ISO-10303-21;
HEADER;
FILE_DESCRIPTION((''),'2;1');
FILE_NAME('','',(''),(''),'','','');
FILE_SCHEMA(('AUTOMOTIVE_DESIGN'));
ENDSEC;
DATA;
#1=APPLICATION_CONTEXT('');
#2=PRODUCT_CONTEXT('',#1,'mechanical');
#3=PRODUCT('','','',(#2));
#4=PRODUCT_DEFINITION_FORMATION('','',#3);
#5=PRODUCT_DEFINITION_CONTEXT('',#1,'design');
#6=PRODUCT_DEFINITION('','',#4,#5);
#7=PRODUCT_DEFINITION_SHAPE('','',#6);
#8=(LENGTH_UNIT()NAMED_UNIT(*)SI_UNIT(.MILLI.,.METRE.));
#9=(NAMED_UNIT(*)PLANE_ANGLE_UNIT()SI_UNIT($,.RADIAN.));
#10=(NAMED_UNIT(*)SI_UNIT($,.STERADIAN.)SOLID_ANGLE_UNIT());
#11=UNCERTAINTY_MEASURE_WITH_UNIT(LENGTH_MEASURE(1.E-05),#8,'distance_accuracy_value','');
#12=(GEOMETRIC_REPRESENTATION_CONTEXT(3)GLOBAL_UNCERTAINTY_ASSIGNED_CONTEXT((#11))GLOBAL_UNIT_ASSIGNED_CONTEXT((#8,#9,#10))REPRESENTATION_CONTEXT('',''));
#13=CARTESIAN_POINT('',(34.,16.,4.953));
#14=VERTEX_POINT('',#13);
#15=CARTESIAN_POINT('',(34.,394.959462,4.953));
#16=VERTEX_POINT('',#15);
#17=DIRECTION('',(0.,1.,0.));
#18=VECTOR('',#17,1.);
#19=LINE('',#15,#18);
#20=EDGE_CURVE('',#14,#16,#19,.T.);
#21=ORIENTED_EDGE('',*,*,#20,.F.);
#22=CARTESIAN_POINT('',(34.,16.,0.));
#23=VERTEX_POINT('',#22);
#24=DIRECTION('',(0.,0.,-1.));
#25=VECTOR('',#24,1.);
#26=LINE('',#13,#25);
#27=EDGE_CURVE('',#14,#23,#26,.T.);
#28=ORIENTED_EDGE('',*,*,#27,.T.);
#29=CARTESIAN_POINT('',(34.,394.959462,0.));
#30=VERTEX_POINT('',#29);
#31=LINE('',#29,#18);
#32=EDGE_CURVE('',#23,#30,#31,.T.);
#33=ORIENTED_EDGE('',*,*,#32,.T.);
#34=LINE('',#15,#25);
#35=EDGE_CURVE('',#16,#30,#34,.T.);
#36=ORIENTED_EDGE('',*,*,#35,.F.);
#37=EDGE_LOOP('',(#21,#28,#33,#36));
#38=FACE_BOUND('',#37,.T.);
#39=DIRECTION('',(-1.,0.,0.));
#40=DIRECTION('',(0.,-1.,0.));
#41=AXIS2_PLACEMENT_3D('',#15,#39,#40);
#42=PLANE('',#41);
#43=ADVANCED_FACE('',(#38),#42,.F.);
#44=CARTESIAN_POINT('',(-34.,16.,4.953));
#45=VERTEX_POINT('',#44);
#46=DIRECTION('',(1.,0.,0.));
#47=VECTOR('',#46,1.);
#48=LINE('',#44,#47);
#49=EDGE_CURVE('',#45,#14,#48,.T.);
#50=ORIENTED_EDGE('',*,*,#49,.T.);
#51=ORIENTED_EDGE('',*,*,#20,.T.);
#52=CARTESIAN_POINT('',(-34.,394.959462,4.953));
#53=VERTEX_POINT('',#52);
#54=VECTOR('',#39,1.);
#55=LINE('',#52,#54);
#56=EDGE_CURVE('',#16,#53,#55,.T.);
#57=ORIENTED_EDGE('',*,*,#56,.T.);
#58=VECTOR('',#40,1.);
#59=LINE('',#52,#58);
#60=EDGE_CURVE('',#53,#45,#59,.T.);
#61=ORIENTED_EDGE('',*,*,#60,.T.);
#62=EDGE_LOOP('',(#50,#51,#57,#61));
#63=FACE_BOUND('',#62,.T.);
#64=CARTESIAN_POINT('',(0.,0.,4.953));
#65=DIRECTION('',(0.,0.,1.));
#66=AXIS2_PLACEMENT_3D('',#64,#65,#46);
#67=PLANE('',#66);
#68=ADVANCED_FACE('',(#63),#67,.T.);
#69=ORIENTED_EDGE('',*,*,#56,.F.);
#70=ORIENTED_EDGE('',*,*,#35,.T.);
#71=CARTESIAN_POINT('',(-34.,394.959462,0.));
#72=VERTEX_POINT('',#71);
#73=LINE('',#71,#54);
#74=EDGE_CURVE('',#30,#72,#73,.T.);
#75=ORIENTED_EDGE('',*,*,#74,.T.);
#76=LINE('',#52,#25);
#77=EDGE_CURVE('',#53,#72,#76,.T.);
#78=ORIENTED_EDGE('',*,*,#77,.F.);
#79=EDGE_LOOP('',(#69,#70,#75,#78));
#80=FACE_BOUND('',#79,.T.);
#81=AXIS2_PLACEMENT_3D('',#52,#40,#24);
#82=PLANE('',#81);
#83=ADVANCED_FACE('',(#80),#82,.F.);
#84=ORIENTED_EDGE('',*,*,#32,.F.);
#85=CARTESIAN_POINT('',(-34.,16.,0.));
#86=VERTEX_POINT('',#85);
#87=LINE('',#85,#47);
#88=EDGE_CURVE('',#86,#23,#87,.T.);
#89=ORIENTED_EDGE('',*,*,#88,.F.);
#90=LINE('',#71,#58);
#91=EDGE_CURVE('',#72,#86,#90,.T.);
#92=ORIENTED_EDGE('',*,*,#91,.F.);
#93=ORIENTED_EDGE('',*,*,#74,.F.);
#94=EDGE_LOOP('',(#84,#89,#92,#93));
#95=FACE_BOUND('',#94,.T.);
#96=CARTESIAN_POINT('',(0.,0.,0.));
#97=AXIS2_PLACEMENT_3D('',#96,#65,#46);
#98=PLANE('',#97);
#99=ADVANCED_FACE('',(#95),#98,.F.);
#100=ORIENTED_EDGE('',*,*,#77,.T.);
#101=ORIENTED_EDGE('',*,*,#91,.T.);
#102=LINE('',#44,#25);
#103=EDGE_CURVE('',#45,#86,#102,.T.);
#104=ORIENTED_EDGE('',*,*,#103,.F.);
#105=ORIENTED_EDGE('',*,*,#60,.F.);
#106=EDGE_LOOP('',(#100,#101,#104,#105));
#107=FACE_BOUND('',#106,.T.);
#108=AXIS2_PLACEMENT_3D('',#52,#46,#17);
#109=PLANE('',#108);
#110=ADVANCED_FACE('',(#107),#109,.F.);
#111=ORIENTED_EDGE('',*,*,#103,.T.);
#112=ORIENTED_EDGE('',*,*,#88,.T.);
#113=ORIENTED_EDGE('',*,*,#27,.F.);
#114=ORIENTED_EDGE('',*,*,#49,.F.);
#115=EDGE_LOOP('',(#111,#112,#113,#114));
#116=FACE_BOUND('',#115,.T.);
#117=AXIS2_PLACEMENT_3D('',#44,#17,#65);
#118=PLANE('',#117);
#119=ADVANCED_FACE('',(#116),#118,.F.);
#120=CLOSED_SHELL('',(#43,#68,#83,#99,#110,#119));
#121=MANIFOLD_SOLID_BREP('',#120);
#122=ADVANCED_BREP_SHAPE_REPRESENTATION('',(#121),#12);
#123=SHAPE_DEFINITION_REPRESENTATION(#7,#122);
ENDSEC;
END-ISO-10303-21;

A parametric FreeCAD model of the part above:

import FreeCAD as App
import Part
import Sketcher
from FreeCAD import Vector

doc = App.newDocument("Part")
body = doc.addObject("PartDesign::Body", "Body")

sketch1 = doc.addObject("Sketcher::SketchObject", "Sketch")
body.addObject(sketch1)
sketch1.AttachmentSupport = (doc.XY_Plane, [""])
sketch1.MapMode = "FlatFace"
sketch1.addGeometry(Part.LineSegment(Vector(-34, 394.959462, 0), Vector(-34, 16, 0)), False)
sketch1.addGeometry(Part.LineSegment(Vector(-34, 16, 0), Vector(34, 16, 0)), False)
sketch1.addGeometry(Part.LineSegment(Vector(34, 16, 0), Vector(34, 394.959462, 0)), False)
sketch1.addGeometry(Part.LineSegment(Vector(34, 394.959462, 0), Vector(-34, 394.959462, 0)), False)
sketch1.addConstraint(Sketcher.Constraint("Coincident", 0, 2, 1, 1))
sketch1.addConstraint(Sketcher.Constraint("Coincident", 1, 2, 2, 1))
sketch1.addConstraint(Sketcher.Constraint("Coincident", 2, 2, 3, 1))
sketch1.addConstraint(Sketcher.Constraint("Coincident", 3, 2, 0, 1))
sketch1.addConstraint(Sketcher.Constraint("Vertical", 0))
sketch1.addConstraint(Sketcher.Constraint("Horizontal", 1))
sketch1.addConstraint(Sketcher.Constraint("Vertical", 2))
sketch1.addConstraint(Sketcher.Constraint("Horizontal", 3))
sketch1.addConstraint(Sketcher.Constraint("DistanceX", 1, 1, 1, 2, 68.0))
sketch1.addConstraint(Sketcher.Constraint("DistanceX", 0, 2, -1, 1, 34.0))
sketch1.addConstraint(Sketcher.Constraint("DistanceY", -1, 1, 0, 2, 16.0))
sketch1.addConstraint(Sketcher.Constraint("DistanceY", 0, 2, 0, 1, 378.959462))
pad1 = doc.addObject("PartDesign::Pad", "Pad")
body.addObject(pad1)
pad1.Profile = sketch1
pad1.Length = 4.953

doc.recompute()
